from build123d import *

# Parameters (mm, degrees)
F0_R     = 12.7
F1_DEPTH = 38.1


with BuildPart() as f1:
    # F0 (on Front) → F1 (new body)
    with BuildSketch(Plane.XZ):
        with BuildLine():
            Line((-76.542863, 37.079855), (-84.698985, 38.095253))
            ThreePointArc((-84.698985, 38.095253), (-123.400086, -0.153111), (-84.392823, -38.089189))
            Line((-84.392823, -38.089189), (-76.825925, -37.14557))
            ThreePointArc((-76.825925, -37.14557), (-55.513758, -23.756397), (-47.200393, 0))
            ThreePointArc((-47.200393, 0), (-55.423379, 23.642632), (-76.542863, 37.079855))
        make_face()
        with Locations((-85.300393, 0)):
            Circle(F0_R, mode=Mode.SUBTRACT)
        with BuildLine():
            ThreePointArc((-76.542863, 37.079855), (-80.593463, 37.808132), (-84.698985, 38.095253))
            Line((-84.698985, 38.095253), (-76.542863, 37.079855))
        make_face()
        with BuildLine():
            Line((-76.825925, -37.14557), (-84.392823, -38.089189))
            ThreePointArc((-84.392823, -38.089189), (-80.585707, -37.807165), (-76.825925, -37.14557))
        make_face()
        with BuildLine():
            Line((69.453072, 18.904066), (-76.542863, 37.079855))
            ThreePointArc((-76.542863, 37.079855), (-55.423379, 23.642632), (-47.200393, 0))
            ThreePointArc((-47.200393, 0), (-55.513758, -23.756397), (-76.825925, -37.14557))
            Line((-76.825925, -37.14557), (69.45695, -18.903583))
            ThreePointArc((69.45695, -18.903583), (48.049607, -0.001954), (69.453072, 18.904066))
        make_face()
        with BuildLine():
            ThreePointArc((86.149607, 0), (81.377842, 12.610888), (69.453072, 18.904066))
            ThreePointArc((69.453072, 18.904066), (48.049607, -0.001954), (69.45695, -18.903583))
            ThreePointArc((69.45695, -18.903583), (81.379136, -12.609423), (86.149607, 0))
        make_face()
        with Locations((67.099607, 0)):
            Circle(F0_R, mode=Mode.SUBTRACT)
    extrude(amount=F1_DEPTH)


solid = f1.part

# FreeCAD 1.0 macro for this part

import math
import FreeCAD as App
import Part
import Sketcher

V = App.Vector
Q = App.Units.Quantity

doc = App.newDocument("Part")
params = doc.addObject("Spreadsheet::Sheet", "Params")
for row, (alias, value) in enumerate([
    ("sketch1_diameter", "1 in"),
    ("sketch1_radius", "1.5 in"),
    ("sketch1_radius2", "0.75 in"),
    ("pad1_length", "1.5 in"),
], start=1):
    params.set(f"A{row}", alias)
    params.set(f"B{row}", "=" + value)
    params.setAlias(f"B{row}", alias)

body = doc.addObject("PartDesign::Body", "Body")

# Sketch on XZ plane
sketch1 = body.newObject("Sketcher::SketchObject", "Sketch")
sketch1.AttachmentSupport = (doc.getObject("XZ_Plane"), [""])
sketch1.MapMode = "FlatFace"
sketch1.addGeometry(Part.ArcOfCircle(Part.Circle(V(-85.30038, 0.000111, 0), V(0, 0, 1), 38.099889), math.radians(76.711361), math.radians(89.095566)), False)
sketch1.addGeometry(Part.ArcOfCircle(Part.Circle(V(-85.300394, 0, 0), V(0, 0, 1), 38.1), math.radians(89.095548), math.radians(271.364958)), False)
sketch1.addGeometry(Part.ArcOfCircle(Part.Circle(V(-85.300395, 0.000002, 0), V(0, 0, 1), 38.100002), math.radians(-88.635041), math.radians(-77.148377)), False)
sketch1.addGeometry(Part.LineSegment(V(-76.825925, -37.14557, 0), V(69.45695, -18.903583, 0)), False)
sketch1.addGeometry(Part.ArcOfCircle(Part.Circle(V(67.099606, 0.000001, 0), V(0, 0, 1), 19.050001), math.radians(-82.891708), math.radians(-0.000002)), False)
sketch1.addGeometry(Part.ArcOfCircle(Part.Circle(V(67.099606, -0.000001, 0), V(0, 0, 1), 19.050001), math.radians(0.000002), math.radians(82.903462)), False)
sketch1.addGeometry(Part.LineSegment(V(69.453072, 18.904066, 0), V(-76.542863, 37.079855, 0)), False)
sketch1.addGeometry(Part.Circle(V(-85.300393, 0, 0), V(0, 0, 1), 12.7), False)
sketch1.addGeometry(Part.Circle(V(67.099607, 0, 0), V(0, 0, 1), 12.7), False)
sketch1.addConstraint(Sketcher.Constraint("Tangent", 0, 2, 1, 1))
sketch1.addConstraint(Sketcher.Constraint("Tangent", 1, 2, 2, 1))
sketch1.addConstraint(Sketcher.Constraint("Coincident", 2, 2, 3, 1))
sketch1.addConstraint(Sketcher.Constraint("Tangent", 3, 2, 4, 1))
sketch1.addConstraint(Sketcher.Constraint("Tangent", 4, 2, 5, 1))
sketch1.addConstraint(Sketcher.Constraint("Tangent", 5, 2, 6, 1))
sketch1.addConstraint(Sketcher.Constraint("Coincident", 6, 2, 0, 1))
sketch1.addConstraint(Sketcher.Constraint("Coincident", 7, 3, 1, 3))
sketch1.addConstraint(Sketcher.Constraint("Coincident", 8, 3, 4, 3))
sketch1.addConstraint(Sketcher.Constraint("Equal", 4, 5))
sketch1.addConstraint(Sketcher.Constraint("Equal", 7, 8))
sketch1.addConstraint(Sketcher.Constraint("PointOnObject", 1, 3, -1))
sketch1.addConstraint(Sketcher.Constraint("PointOnObject", 2, 3, -1))
sketch1.addConstraint(Sketcher.Constraint("PointOnObject", 4, 3, -1))
sketch1.addConstraint(Sketcher.Constraint("PointOnObject", 4, 2, -1))
sketch1.addConstraint(Sketcher.Constraint("Diameter", 7, Q("1 in")))
sketch1.addConstraint(Sketcher.Constraint("Radius", 1, Q("1.5 in")))
sketch1.addConstraint(Sketcher.Constraint("Radius", 4, Q("0.75 in")))
sketch1.addConstraint(Sketcher.Constraint("DistanceX", 1, 3, 4, 3, Q("6 in")))
sketch1.addConstraint(Sketcher.Constraint("Radius", 0, 38.099889))
sketch1.addConstraint(Sketcher.Constraint("DistanceY", 1, 2, 0, 3, 38.0893))
sketch1.addConstraint(Sketcher.Constraint("DistanceX", 1, 2, 2, 2, 7.566898))
sketch1.addConstraint(Sketcher.Constraint("DistanceX", 0, 3, -1, 1, 85.30038))
sketch1.addConstraint(Sketcher.Constraint("DistanceY", 0, 3, 0, 2, 38.095142))
sketch1.addConstraint(Sketcher.Constraint("DistanceX", 2, 3, 6, 2, 8.757532))
sketch1.setExpression("Constraints[15]", "Params.sketch1_diameter")
sketch1.setExpression("Constraints[16]", "Params.sketch1_radius")
sketch1.setExpression("Constraints[17]", "Params.sketch1_radius2")
pad1 = body.newObject("PartDesign::Pad", "Pad")
pad1.Profile = sketch1
pad1.setExpression("Length", "Params.pad1_length")

doc.recompute()
